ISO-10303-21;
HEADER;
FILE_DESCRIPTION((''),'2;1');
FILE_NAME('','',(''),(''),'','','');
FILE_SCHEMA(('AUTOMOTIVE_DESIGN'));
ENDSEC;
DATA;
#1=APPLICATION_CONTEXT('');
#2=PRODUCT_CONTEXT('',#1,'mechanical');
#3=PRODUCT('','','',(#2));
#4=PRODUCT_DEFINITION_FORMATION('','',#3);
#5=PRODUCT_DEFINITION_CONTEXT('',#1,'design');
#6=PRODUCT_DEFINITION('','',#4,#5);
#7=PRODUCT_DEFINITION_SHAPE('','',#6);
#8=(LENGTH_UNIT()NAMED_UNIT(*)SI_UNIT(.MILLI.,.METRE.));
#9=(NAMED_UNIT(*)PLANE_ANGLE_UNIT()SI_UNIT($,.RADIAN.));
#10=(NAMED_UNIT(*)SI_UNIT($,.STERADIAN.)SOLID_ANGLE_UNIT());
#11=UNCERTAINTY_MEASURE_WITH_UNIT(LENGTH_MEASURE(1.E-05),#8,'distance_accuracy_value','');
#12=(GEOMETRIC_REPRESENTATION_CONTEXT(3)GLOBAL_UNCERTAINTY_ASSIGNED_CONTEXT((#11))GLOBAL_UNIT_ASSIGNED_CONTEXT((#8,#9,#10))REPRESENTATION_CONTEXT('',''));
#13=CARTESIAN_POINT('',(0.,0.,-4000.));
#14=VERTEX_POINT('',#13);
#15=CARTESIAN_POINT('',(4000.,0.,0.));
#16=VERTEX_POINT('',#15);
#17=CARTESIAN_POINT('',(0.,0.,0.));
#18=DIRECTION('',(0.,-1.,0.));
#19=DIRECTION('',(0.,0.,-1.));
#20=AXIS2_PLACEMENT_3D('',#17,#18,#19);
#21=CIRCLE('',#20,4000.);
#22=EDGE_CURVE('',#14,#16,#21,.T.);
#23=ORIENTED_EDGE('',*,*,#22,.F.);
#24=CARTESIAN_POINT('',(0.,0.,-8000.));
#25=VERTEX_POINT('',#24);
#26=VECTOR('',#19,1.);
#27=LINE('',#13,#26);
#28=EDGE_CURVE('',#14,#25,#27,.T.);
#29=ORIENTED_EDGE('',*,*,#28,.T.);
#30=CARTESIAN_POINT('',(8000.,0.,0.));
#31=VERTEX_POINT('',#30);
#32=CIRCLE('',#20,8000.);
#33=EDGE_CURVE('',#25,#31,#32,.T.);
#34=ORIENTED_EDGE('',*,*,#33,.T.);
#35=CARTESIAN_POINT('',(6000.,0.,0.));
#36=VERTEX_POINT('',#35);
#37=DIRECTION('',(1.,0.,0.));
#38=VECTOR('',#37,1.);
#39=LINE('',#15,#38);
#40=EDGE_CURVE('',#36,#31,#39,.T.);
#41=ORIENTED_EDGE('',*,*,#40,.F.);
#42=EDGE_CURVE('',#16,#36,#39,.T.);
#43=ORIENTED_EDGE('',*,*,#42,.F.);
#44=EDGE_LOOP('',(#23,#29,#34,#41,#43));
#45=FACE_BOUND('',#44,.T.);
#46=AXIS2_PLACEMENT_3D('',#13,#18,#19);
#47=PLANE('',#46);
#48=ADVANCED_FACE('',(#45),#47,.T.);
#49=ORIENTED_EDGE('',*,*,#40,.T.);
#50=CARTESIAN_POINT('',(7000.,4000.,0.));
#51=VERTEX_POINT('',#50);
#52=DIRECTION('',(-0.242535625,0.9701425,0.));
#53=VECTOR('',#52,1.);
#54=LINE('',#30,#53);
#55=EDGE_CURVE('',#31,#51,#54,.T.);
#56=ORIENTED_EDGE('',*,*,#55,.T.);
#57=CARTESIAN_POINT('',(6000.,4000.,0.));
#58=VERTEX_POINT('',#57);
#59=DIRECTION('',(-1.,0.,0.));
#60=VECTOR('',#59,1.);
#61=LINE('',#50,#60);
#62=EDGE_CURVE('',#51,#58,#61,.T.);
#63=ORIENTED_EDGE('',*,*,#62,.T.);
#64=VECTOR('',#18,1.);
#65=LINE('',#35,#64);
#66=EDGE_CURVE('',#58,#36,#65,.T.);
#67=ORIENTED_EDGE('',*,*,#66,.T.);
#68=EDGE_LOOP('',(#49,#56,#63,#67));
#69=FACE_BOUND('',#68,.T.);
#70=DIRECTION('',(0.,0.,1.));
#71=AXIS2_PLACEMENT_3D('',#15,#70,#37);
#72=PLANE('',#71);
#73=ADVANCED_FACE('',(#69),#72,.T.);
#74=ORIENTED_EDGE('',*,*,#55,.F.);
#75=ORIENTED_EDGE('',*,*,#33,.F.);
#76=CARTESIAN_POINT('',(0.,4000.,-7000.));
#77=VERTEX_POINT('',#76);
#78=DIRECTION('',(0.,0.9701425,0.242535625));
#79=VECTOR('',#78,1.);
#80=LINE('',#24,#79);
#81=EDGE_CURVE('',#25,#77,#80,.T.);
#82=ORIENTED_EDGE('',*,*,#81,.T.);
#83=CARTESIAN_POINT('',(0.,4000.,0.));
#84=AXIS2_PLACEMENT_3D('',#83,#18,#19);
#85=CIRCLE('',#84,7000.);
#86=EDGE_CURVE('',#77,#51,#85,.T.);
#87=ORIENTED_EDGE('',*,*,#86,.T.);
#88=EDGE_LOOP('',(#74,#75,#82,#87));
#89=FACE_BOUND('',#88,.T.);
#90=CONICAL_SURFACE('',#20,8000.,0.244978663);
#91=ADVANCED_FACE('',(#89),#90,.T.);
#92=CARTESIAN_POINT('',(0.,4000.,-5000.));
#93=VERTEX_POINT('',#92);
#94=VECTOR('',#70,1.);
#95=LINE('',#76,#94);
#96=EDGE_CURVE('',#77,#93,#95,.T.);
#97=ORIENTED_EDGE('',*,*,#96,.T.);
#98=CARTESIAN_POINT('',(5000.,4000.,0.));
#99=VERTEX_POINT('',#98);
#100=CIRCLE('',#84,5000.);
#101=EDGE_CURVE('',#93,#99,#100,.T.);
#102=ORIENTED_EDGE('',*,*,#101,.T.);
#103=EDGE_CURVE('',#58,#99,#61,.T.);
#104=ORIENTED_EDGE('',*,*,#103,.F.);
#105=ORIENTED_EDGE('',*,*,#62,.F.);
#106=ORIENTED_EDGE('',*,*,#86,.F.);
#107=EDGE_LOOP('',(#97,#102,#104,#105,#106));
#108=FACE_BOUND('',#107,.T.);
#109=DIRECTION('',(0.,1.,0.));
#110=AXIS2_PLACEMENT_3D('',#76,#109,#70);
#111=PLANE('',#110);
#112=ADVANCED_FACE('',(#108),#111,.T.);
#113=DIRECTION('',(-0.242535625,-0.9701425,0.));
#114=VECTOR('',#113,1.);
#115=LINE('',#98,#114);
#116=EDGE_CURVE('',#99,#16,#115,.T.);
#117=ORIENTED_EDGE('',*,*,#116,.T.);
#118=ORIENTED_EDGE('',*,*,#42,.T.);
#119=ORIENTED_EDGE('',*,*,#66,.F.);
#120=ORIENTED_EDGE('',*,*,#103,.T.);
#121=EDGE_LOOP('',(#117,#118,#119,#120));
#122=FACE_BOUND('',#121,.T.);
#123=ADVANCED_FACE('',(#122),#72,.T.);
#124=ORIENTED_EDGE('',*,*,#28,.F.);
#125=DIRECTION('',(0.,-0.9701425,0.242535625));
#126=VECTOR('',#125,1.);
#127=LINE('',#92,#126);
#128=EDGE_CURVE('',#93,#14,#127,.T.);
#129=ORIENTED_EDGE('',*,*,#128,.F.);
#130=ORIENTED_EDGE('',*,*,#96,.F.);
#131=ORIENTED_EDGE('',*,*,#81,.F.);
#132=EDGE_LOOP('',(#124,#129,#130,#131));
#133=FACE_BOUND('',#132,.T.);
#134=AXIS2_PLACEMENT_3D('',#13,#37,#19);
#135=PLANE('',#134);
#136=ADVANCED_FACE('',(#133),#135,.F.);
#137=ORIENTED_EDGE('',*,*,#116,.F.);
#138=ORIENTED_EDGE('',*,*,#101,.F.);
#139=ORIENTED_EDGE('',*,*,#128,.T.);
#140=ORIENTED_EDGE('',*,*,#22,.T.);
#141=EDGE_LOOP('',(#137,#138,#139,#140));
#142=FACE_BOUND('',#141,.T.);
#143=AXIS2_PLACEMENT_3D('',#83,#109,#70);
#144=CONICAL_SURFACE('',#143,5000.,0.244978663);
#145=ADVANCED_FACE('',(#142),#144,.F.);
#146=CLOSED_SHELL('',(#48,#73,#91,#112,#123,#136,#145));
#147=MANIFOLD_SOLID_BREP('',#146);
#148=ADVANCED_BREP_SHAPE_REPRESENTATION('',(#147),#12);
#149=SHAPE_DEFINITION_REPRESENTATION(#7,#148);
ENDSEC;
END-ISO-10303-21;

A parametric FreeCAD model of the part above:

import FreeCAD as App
import Part
import Sketcher

V = App.Vector

doc = App.newDocument("Part")
params = doc.addObject("Spreadsheet::Sheet", "Params")
for row, (alias, value) in enumerate([
    ("sketch1_width", "4000 mm"),
    ("sketch1_width2", "2000 mm"),
    ("revolution_angle", "90 deg"),
], start=1):
    params.set(f"A{row}", alias)
    params.set(f"B{row}", "=" + value)
    params.setAlias(f"B{row}", alias)

body = doc.addObject("PartDesign::Body", "Body")

# Sketch on XY plane
sketch1 = body.newObject("Sketcher::SketchObject", "Sketch")
sketch1.AttachmentSupport = (doc.getObject("XY_Plane"), [""])
sketch1.MapMode = "FlatFace"
sketch1.addGeometry([
    Part.LineSegment(V(4000, 0, 0), V(8000, 0, 0)),
    Part.LineSegment(V(8000, 0, 0), V(7000, 4000, 0)),
    Part.LineSegment(V(7000, 4000, 0), V(5000, 4000, 0)),
    Part.LineSegment(V(5000, 4000, 0), V(4000, 0, 0)),
], False)
sketch1.addConstraint([
    Sketcher.Constraint("Coincident", 0, 2, 1, 1),
    Sketcher.Constraint("Coincident", 1, 2, 2, 1),
    Sketcher.Constraint("Coincident", 2, 2, 3, 1),
    Sketcher.Constraint("Coincident", 3, 2, 0, 1),
    Sketcher.Constraint("Horizontal", 0),
    Sketcher.Constraint("Horizontal", 2),
    Sketcher.Constraint("PointOnObject", 0, 2, -1),
    Sketcher.Constraint("Equal", 1, 3),
    Sketcher.Constraint("DistanceX", 0, 1, 0, 2, 4000.0),
    Sketcher.Constraint("DistanceX", 2, 2, 2, 1, 2000.0),
    Sketcher.Constraint("DistanceX", -1, 1, 0, 2, 8000.0),
    Sketcher.Constraint("DistanceY", -1, 1, 1, 2, 4000.0),
])
sketch1.setExpression("Constraints[8]", "Params.sketch1_width")
sketch1.setExpression("Constraints[9]", "Params.sketch1_width2")
revolution = body.newObject("PartDesign::Revolution", "Revolution")
revolution.Profile = sketch1
revolution.ReferenceAxis = (sketch1, ["V_Axis"])
revolution.setExpression("Angle", "Params.revolution_angle")

doc.recompute()
